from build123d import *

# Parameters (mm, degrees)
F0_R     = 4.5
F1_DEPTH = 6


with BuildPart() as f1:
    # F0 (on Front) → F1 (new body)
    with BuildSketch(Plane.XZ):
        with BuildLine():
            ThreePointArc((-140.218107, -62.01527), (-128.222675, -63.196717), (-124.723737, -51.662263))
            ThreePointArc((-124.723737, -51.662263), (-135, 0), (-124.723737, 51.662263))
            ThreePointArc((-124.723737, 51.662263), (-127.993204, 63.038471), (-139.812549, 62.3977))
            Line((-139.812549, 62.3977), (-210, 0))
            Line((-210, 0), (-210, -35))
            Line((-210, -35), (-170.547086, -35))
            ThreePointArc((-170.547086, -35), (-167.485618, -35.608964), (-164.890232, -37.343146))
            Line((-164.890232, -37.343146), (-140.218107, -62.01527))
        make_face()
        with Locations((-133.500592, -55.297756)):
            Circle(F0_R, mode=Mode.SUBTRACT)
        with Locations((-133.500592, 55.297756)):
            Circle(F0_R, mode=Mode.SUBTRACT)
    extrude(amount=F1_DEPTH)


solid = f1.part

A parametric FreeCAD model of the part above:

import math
import FreeCAD as App
import Part
import Sketcher
from FreeCAD import Vector
Q = App.Units.Quantity

doc = App.newDocument("Part")
params = doc.addObject("Spreadsheet::Sheet", "Params")
for row, (alias, value) in enumerate([
    ("sketch1_diameter", "9 mm"),
    ("sketch1_radius", "134.999999 mm"),
    ("sketch1_radius2", "7.999998 mm"),
    ("sketch1_radius3", "9.5 mm"),
    ("sketch1_height", "35 mm"),
    ("pad1_length", "6 mm"),
], start=1):
    params.set(f"A{row}", alias)
    params.set(f"B{row}", "=" + value)
    params.setAlias(f"B{row}", alias)

body = doc.addObject("PartDesign::Body", "Body")

sketch1 = body.newObject("Sketcher::SketchObject", "Sketch")
sketch1.AttachmentSupport = (doc.getObject("XZ_Plane"), [""])
sketch1.MapMode = "FlatFace"
sketch1.addGeometry(Part.ArcOfCircle(Part.Circle(Vector(-133.5, -55.3, 0), Vector(0, 0, 1), 9.5), math.radians(-135), math.radians(23)), False)
sketch1.addGeometry(Part.ArcOfCircle(Part.Circle(Vector(0, 0, 0), Vector(0, 0, 1), 135), math.radians(158), math.radians(202)), False)
sketch1.addGeometry(Part.ArcOfCircle(Part.Circle(Vector(-133.5, 55.3, 0), Vector(0, 0, 1), 9.5), math.radians(-23), math.radians(132)), False)
sketch1.addGeometry(Part.LineSegment(Vector(-139.8, 62.4, 0), Vector(-210, 0, 0)), False)
sketch1.addGeometry(Part.LineSegment(Vector(-210, 0, 0), Vector(-210, -35, 0)), False)
sketch1.addGeometry(Part.LineSegment(Vector(-210, -35, 0), Vector(-170.5, -35, 0)), False)
sketch1.addGeometry(Part.ArcOfCircle(Part.Circle(Vector(-170.5, -43, 0), Vector(0, 0, 1), 8), math.radians(45), math.radians(90)), False)
sketch1.addGeometry(Part.LineSegment(Vector(-164.9, -37.3, 0), Vector(-140.2, -62, 0)), False)
sketch1.addGeometry(Part.Circle(Vector(-133.5, -55.3, 0), Vector(0, 0, 1), 4.5), False)
sketch1.addGeometry(Part.Circle(Vector(-133.5, 55.3, 0), Vector(0, 0, 1), 4.5), False)
sketch1.addConstraint(Sketcher.Constraint("Tangent", 0, 2, 1, 2))
sketch1.addConstraint(Sketcher.Constraint("Tangent", 1, 1, 2, 1))
sketch1.addConstraint(Sketcher.Constraint("Tangent", 2, 2, 3, 1))
sketch1.addConstraint(Sketcher.Constraint("Coincident", 3, 2, 4, 1))
sketch1.addConstraint(Sketcher.Constraint("Coincident", 4, 2, 5, 1))
sketch1.addConstraint(Sketcher.Constraint("Tangent", 5, 2, 6, 2))
sketch1.addConstraint(Sketcher.Constraint("Tangent", 6, 1, 7, 1))
sketch1.addConstraint(Sketcher.Constraint("Tangent", 7, 2, 0, 1))
sketch1.addConstraint(Sketcher.Constraint("Vertical", 4))
sketch1.addConstraint(Sketcher.Constraint("Horizontal", 5))
sketch1.addConstraint(Sketcher.Constraint("Coincident", 1, 3, -1, 1))
sketch1.addConstraint(Sketcher.Constraint("Coincident", 8, 3, 0, 3))
sketch1.addConstraint(Sketcher.Constraint("Coincident", 9, 3, 2, 3))
sketch1.addConstraint(Sketcher.Constraint("Equal", 0, 2))
sketch1.addConstraint(Sketcher.Constraint("Equal", 8, 9))
sketch1.addConstraint(Sketcher.Constraint("PointOnObject", 3, 2, -1))
sketch1.addConstraint(Sketcher.Constraint("Vertical", 0, 3, 2, 3))
sketch1.addConstraint(Sketcher.Constraint("Diameter", 8, Q("9 mm")))
sketch1.addConstraint(Sketcher.Constraint("Radius", 1, Q("134.999999 mm")))
sketch1.addConstraint(Sketcher.Constraint("Radius", 6, Q("7.999998 mm")))
sketch1.addConstraint(Sketcher.Constraint("Radius", 0, Q("9.5 mm")))
sketch1.addConstraint(Sketcher.Constraint("DistanceY", 4, 2, 4, 1, Q("35 mm")))
sketch1.addConstraint(Sketcher.Constraint("Angle", 7, Q("-44.999999 deg")))
sketch1.addConstraint(Sketcher.Constraint("DistanceX", 3, 2, -1, 1, Q("210 mm")))
sketch1.addConstraint(Sketcher.Constraint("DistanceY", -1, 1, 2, 2, Q("62.3977 mm")))
sketch1.setExpression("Constraints[17]", "Params.sketch1_diameter")
sketch1.setExpression("Constraints[18]", "Params.sketch1_radius")
sketch1.setExpression("Constraints[19]", "Params.sketch1_radius2")
sketch1.setExpression("Constraints[20]", "Params.sketch1_radius3")
sketch1.setExpression("Constraints[21]", "Params.sketch1_height")
pad1 = body.newObject("PartDesign::Pad", "Pad")
pad1.Profile = sketch1
pad1.setExpression("Length", "Params.pad1_length")

doc.recompute()
